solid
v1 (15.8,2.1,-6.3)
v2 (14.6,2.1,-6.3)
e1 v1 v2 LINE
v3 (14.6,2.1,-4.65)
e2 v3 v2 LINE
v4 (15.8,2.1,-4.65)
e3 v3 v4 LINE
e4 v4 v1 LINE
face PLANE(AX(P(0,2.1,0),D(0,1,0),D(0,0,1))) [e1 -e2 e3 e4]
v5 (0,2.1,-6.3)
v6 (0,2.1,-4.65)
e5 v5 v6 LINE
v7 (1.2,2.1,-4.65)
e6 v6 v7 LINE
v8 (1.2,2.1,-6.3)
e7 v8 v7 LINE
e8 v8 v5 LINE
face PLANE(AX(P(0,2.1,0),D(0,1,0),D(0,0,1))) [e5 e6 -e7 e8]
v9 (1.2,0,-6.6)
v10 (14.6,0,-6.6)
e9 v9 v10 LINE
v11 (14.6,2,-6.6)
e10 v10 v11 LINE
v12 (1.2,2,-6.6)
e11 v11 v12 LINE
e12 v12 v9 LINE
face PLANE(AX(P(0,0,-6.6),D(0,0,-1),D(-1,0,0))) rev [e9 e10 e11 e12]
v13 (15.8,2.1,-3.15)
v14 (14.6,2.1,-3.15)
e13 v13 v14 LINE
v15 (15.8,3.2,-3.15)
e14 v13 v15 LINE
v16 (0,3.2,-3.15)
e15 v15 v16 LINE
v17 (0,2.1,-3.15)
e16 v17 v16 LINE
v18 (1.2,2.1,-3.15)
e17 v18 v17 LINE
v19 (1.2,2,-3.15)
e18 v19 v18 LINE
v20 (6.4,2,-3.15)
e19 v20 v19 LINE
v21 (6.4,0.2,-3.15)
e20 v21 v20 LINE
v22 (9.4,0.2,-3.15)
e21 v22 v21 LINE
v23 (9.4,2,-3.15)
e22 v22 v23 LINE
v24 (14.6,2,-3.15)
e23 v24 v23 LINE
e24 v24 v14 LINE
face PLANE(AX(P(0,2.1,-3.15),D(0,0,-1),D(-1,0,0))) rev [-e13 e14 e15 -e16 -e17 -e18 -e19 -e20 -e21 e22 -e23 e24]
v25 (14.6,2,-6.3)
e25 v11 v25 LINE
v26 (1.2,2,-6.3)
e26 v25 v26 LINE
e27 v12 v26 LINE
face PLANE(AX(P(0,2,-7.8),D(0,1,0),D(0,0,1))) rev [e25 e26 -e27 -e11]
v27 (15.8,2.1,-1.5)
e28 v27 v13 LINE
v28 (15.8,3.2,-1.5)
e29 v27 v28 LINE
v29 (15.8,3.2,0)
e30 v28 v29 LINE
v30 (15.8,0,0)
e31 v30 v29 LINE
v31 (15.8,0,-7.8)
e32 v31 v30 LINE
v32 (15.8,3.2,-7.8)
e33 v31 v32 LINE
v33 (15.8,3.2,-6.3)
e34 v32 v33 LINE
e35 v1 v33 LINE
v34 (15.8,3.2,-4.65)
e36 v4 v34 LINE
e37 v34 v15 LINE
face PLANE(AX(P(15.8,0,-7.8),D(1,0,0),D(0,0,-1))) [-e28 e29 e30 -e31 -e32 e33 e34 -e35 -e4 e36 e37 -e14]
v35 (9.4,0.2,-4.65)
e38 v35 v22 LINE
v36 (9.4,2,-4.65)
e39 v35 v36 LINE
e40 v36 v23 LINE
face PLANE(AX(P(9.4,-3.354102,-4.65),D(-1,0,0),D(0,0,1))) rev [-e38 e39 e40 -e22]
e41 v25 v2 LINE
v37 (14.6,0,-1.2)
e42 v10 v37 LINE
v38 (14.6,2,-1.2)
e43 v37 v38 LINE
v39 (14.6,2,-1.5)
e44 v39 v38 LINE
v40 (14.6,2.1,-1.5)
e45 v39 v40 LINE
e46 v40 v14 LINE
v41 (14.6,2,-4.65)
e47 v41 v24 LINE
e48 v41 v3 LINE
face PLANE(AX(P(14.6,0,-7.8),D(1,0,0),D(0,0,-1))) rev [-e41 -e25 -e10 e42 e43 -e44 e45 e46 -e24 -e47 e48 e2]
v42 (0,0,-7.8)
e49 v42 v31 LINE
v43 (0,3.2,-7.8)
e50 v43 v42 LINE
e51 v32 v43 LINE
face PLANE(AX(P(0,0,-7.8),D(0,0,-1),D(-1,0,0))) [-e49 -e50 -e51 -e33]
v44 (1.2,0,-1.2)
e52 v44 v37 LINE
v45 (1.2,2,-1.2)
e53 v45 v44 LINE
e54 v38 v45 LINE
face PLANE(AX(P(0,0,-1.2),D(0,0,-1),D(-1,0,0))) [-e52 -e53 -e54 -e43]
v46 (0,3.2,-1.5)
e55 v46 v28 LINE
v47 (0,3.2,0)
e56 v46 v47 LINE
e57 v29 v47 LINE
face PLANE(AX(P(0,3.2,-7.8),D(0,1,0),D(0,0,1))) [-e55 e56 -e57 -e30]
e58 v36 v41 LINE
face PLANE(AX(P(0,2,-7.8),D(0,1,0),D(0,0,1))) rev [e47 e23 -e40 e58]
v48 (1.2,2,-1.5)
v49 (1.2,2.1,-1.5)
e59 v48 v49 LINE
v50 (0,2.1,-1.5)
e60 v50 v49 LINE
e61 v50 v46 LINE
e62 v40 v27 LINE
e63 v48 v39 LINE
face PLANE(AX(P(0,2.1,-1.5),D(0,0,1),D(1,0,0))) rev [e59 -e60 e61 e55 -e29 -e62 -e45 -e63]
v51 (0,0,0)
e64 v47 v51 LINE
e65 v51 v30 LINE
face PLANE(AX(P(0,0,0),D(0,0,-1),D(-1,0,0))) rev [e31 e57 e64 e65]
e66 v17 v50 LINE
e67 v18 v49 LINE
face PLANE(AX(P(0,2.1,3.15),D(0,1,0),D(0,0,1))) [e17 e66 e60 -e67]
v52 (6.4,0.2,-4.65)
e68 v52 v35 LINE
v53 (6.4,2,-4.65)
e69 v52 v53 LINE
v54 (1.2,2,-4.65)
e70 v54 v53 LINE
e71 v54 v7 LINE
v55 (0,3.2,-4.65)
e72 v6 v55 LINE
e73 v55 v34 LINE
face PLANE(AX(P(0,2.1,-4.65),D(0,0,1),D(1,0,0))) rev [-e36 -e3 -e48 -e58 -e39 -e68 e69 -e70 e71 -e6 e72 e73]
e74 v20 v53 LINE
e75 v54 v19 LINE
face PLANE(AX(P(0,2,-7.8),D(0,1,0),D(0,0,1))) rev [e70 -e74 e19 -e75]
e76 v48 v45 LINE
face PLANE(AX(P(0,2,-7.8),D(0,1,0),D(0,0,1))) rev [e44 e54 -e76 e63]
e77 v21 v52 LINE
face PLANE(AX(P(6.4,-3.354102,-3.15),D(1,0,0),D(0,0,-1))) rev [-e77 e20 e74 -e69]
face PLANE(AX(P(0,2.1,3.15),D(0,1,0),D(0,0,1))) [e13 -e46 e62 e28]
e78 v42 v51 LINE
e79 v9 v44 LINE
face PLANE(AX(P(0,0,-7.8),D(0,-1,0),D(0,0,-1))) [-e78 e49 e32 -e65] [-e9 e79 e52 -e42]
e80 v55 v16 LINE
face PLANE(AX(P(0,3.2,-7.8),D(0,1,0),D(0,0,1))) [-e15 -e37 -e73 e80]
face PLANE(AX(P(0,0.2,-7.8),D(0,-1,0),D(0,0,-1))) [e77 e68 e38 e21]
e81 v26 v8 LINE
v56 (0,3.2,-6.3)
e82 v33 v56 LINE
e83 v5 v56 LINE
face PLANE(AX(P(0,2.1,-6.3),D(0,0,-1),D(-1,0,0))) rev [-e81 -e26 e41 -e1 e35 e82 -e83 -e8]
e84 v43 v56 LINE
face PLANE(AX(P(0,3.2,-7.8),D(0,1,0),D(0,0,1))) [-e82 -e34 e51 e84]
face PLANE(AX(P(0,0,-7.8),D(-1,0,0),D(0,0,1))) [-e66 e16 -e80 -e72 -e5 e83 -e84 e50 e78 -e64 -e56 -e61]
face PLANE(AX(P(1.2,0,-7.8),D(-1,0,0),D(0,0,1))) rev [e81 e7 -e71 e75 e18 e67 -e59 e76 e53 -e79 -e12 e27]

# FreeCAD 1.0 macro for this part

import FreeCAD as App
import Part
import Sketcher

V = App.Vector
Q = App.Units.Quantity


def faces_at(feature, points):
    """Names of the faces that lie closest to the given points."""
    faces = feature.Shape.Faces
    near = lambda p: min(range(len(faces)), key=lambda i: faces[i].distToShape(Part.Vertex(*p))[0])
    return sorted({f"Face{near(p) + 1}" for p in points})

doc = App.newDocument("Part")
body = doc.addObject("PartDesign::Body", "Body")

# Sketch on XY plane
sketch1 = body.newObject("Sketcher::SketchObject", "Sketch")
sketch1.AttachmentSupport = (doc.getObject("XY_Plane"), [""])
sketch1.MapMode = "FlatFace"
sketch1.addGeometry([
    Part.LineSegment(V(0, 3.2, 0), V(0, 0, 0)),
    Part.LineSegment(V(0, 0, 0), V(15.8, 0, 0)),
    Part.LineSegment(V(15.8, 0, 0), V(15.8, 3.2, 0)),
    Part.LineSegment(V(15.8, 3.2, 0), V(0, 3.2, 0)),
], False)
sketch1.addConstraint([
    Sketcher.Constraint("Coincident", 0, 2, 1, 1),
    Sketcher.Constraint("Coincident", 1, 2, 2, 1),
    Sketcher.Constraint("Coincident", 2, 2, 3, 1),
    Sketcher.Constraint("Coincident", 3, 2, 0, 1),
    Sketcher.Constraint("Vertical", 0),
    Sketcher.Constraint("Horizontal", 1),
    Sketcher.Constraint("Vertical", 2),
    Sketcher.Constraint("Horizontal", 3),
    Sketcher.Constraint("Coincident", 0, 2, -1, 1),
    Sketcher.Constraint("DistanceX", 1, 1, 1, 2, Q("15.8 mm")),
    Sketcher.Constraint("DistanceY", 0, 2, 0, 1, Q("3.2 mm")),
])
pad1 = body.newObject("PartDesign::Pad", "Pad")
pad1.Profile = sketch1
pad1.Length = 7.8
pad1.Reversed = True
doc.recompute()

thickness = body.newObject("PartDesign::Thickness", "Thickness")
thickness.Base = (pad1, faces_at(pad1, [(7.9, 0, -3.9)]))
thickness.Value = 1.2
thickness.Reversed = True
thickness.Join = "Intersection"

# Sketch on XZ plane
sketch2 = body.newObject("Sketcher::SketchObject", "Sketch001")
sketch2.AttachmentSupport = (doc.getObject("XZ_Plane"), [""])
sketch2.MapMode = "FlatFace"
sketch2.AttachmentOffset = App.Placement(V(0, 0, -3.2), App.Rotation())
sketch2.addGeometry([
    Part.LineSegment(V(0, -6.3, 0), V(0, -4.65, 0)),
    Part.LineSegment(V(0, -4.65, 0), V(15.8, -4.65, 0)),
    Part.LineSegment(V(15.8, -4.65, 0), V(15.8, -6.3, 0)),
    Part.LineSegment(V(15.8, -6.3, 0), V(0, -6.3, 0)),
], False)
sketch2.addConstraint([
    Sketcher.Constraint("Coincident", 0, 2, 1, 1),
    Sketcher.Constraint("Coincident", 1, 2, 2, 1),
    Sketcher.Constraint("Coincident", 2, 2, 3, 1),
    Sketcher.Constraint("Coincident", 3, 2, 0, 1),
    Sketcher.Constraint("Vertical", 0),
    Sketcher.Constraint("Horizontal", 1),
    Sketcher.Constraint("Vertical", 2),
    Sketcher.Constraint("Horizontal", 3),
    Sketcher.Constraint("PointOnObject", 0, 2, -2),
    Sketcher.Constraint("DistanceX", 1, 1, 1, 2, Q("15.8 mm")),
    Sketcher.Constraint("DistanceY", 0, 1, 0, 2, Q("1.65 mm")),
    Sketcher.Constraint("DistanceY", 2, 2, -1, 1, Q("6.3 mm")),
])
pocket1 = body.newObject("PartDesign::Pocket", "Pocket")
pocket1.Profile = sketch2
pocket1.Length = 1.1
pocket1.Reversed = True
doc.recompute()

linearpattern = body.newObject("PartDesign::LinearPattern", "LinearPattern")
linearpattern.Originals = [pocket1]
linearpattern.Direction = (doc.getObject("Z_Axis"), [""])
linearpattern.Mode = "offset"
linearpattern.Offset = 3.15
linearpattern.Occurrences = 2
body.Tip = linearpattern

# Sketch on XZ plane
sketch3 = body.newObject("Sketcher::SketchObject", "Sketch002")
sketch3.AttachmentSupport = (doc.getObject("XZ_Plane"), [""])
sketch3.MapMode = "FlatFace"
sketch3.AttachmentOffset = App.Placement(V(0, 0, -2.1), App.Rotation())
sketch3.addGeometry([
    Part.LineSegment(V(1.2, -6.3, 0), V(1.2, -4.65, 0)),
    Part.LineSegment(V(1.2, -4.65, 0), V(14.6, -4.65, 0)),
    Part.LineSegment(V(14.6, -4.65, 0), V(14.6, -6.3, 0)),
    Part.LineSegment(V(14.6, -6.3, 0), V(1.2, -6.3, 0)),
], False)
sketch3.addConstraint([
    Sketcher.Constraint("Coincident", 0, 2, 1, 1),
    Sketcher.Constraint("Coincident", 1, 2, 2, 1),
    Sketcher.Constraint("Coincident", 2, 2, 3, 1),
    Sketcher.Constraint("Coincident", 3, 2, 0, 1),
    Sketcher.Constraint("Vertical", 0),
    Sketcher.Constraint("Horizontal", 1),
    Sketcher.Constraint("Vertical", 2),
    Sketcher.Constraint("Horizontal", 3),
    Sketcher.Constraint("DistanceX", 1, 1, 1, 2, Q("13.4 mm")),
    Sketcher.Constraint("DistanceY", 0, 1, 0, 2, Q("1.65 mm")),
    Sketcher.Constraint("DistanceX", -1, 1, 0, 2, Q("1.2 mm")),
    Sketcher.Constraint("DistanceY", 2, 2, -1, 1, Q("6.3 mm")),
])
pocket2 = body.newObject("PartDesign::Pocket", "Pocket001")
pocket2.Profile = sketch3
pocket2.Type = "ThroughAll"
pocket2.Reversed = True
doc.recompute()

linearpattern2 = body.newObject("PartDesign::LinearPattern", "LinearPattern001")
linearpattern2.Originals = [pocket2]
linearpattern2.Direction = (doc.getObject("Z_Axis"), [""])
linearpattern2.Mode = "offset"
linearpattern2.Offset = 3.15
linearpattern2.Occurrences = 2
body.Tip = linearpattern2

# Sketch on XZ plane
sketch4 = body.newObject("Sketcher::SketchObject", "Sketch003")
sketch4.AttachmentSupport = (doc.getObject("XZ_Plane"), [""])
sketch4.MapMode = "FlatFace"
sketch4.AttachmentOffset = App.Placement(V(0, 0, -2), App.Rotation())
sketch4.addGeometry([
    Part.LineSegment(V(6.4, -3.15, 0), V(6.4, -4.65, 0)),
    Part.LineSegment(V(6.4, -4.65, 0), V(9.4, -4.65, 0)),
    Part.LineSegment(V(9.4, -4.65, 0), V(9.4, -3.15, 0)),
    Part.LineSegment(V(9.4, -3.15, 0), V(6.4, -3.15, 0)),
], False)
sketch4.addConstraint([
    Sketcher.Constraint("Coincident", 0, 2, 1, 1),
    Sketcher.Constraint("Coincident", 1, 2, 2, 1),
    Sketcher.Constraint("Coincident", 2, 2, 3, 1),
    Sketcher.Constraint("Coincident", 3, 2, 0, 1),
    Sketcher.Constraint("Vertical", 0),
    Sketcher.Constraint("Horizontal", 1),
    Sketcher.Constraint("Vertical", 2),
    Sketcher.Constraint("Horizontal", 3),
    Sketcher.Constraint("DistanceX", 1, 1, 1, 2, Q("3 mm")),
    Sketcher.Constraint("DistanceY", 0, 2, 0, 1, Q("1.5 mm")),
    Sketcher.Constraint("DistanceX", -1, 1, 0, 2, Q("6.4 mm")),
    Sketcher.Constraint("DistanceY", 0, 2, -1, 1, Q("4.65 mm")),
])
pad2 = body.newObject("PartDesign::Pad", "Pad001")
pad2.Profile = sketch4
pad2.Length = 1.8

doc.recompute()
